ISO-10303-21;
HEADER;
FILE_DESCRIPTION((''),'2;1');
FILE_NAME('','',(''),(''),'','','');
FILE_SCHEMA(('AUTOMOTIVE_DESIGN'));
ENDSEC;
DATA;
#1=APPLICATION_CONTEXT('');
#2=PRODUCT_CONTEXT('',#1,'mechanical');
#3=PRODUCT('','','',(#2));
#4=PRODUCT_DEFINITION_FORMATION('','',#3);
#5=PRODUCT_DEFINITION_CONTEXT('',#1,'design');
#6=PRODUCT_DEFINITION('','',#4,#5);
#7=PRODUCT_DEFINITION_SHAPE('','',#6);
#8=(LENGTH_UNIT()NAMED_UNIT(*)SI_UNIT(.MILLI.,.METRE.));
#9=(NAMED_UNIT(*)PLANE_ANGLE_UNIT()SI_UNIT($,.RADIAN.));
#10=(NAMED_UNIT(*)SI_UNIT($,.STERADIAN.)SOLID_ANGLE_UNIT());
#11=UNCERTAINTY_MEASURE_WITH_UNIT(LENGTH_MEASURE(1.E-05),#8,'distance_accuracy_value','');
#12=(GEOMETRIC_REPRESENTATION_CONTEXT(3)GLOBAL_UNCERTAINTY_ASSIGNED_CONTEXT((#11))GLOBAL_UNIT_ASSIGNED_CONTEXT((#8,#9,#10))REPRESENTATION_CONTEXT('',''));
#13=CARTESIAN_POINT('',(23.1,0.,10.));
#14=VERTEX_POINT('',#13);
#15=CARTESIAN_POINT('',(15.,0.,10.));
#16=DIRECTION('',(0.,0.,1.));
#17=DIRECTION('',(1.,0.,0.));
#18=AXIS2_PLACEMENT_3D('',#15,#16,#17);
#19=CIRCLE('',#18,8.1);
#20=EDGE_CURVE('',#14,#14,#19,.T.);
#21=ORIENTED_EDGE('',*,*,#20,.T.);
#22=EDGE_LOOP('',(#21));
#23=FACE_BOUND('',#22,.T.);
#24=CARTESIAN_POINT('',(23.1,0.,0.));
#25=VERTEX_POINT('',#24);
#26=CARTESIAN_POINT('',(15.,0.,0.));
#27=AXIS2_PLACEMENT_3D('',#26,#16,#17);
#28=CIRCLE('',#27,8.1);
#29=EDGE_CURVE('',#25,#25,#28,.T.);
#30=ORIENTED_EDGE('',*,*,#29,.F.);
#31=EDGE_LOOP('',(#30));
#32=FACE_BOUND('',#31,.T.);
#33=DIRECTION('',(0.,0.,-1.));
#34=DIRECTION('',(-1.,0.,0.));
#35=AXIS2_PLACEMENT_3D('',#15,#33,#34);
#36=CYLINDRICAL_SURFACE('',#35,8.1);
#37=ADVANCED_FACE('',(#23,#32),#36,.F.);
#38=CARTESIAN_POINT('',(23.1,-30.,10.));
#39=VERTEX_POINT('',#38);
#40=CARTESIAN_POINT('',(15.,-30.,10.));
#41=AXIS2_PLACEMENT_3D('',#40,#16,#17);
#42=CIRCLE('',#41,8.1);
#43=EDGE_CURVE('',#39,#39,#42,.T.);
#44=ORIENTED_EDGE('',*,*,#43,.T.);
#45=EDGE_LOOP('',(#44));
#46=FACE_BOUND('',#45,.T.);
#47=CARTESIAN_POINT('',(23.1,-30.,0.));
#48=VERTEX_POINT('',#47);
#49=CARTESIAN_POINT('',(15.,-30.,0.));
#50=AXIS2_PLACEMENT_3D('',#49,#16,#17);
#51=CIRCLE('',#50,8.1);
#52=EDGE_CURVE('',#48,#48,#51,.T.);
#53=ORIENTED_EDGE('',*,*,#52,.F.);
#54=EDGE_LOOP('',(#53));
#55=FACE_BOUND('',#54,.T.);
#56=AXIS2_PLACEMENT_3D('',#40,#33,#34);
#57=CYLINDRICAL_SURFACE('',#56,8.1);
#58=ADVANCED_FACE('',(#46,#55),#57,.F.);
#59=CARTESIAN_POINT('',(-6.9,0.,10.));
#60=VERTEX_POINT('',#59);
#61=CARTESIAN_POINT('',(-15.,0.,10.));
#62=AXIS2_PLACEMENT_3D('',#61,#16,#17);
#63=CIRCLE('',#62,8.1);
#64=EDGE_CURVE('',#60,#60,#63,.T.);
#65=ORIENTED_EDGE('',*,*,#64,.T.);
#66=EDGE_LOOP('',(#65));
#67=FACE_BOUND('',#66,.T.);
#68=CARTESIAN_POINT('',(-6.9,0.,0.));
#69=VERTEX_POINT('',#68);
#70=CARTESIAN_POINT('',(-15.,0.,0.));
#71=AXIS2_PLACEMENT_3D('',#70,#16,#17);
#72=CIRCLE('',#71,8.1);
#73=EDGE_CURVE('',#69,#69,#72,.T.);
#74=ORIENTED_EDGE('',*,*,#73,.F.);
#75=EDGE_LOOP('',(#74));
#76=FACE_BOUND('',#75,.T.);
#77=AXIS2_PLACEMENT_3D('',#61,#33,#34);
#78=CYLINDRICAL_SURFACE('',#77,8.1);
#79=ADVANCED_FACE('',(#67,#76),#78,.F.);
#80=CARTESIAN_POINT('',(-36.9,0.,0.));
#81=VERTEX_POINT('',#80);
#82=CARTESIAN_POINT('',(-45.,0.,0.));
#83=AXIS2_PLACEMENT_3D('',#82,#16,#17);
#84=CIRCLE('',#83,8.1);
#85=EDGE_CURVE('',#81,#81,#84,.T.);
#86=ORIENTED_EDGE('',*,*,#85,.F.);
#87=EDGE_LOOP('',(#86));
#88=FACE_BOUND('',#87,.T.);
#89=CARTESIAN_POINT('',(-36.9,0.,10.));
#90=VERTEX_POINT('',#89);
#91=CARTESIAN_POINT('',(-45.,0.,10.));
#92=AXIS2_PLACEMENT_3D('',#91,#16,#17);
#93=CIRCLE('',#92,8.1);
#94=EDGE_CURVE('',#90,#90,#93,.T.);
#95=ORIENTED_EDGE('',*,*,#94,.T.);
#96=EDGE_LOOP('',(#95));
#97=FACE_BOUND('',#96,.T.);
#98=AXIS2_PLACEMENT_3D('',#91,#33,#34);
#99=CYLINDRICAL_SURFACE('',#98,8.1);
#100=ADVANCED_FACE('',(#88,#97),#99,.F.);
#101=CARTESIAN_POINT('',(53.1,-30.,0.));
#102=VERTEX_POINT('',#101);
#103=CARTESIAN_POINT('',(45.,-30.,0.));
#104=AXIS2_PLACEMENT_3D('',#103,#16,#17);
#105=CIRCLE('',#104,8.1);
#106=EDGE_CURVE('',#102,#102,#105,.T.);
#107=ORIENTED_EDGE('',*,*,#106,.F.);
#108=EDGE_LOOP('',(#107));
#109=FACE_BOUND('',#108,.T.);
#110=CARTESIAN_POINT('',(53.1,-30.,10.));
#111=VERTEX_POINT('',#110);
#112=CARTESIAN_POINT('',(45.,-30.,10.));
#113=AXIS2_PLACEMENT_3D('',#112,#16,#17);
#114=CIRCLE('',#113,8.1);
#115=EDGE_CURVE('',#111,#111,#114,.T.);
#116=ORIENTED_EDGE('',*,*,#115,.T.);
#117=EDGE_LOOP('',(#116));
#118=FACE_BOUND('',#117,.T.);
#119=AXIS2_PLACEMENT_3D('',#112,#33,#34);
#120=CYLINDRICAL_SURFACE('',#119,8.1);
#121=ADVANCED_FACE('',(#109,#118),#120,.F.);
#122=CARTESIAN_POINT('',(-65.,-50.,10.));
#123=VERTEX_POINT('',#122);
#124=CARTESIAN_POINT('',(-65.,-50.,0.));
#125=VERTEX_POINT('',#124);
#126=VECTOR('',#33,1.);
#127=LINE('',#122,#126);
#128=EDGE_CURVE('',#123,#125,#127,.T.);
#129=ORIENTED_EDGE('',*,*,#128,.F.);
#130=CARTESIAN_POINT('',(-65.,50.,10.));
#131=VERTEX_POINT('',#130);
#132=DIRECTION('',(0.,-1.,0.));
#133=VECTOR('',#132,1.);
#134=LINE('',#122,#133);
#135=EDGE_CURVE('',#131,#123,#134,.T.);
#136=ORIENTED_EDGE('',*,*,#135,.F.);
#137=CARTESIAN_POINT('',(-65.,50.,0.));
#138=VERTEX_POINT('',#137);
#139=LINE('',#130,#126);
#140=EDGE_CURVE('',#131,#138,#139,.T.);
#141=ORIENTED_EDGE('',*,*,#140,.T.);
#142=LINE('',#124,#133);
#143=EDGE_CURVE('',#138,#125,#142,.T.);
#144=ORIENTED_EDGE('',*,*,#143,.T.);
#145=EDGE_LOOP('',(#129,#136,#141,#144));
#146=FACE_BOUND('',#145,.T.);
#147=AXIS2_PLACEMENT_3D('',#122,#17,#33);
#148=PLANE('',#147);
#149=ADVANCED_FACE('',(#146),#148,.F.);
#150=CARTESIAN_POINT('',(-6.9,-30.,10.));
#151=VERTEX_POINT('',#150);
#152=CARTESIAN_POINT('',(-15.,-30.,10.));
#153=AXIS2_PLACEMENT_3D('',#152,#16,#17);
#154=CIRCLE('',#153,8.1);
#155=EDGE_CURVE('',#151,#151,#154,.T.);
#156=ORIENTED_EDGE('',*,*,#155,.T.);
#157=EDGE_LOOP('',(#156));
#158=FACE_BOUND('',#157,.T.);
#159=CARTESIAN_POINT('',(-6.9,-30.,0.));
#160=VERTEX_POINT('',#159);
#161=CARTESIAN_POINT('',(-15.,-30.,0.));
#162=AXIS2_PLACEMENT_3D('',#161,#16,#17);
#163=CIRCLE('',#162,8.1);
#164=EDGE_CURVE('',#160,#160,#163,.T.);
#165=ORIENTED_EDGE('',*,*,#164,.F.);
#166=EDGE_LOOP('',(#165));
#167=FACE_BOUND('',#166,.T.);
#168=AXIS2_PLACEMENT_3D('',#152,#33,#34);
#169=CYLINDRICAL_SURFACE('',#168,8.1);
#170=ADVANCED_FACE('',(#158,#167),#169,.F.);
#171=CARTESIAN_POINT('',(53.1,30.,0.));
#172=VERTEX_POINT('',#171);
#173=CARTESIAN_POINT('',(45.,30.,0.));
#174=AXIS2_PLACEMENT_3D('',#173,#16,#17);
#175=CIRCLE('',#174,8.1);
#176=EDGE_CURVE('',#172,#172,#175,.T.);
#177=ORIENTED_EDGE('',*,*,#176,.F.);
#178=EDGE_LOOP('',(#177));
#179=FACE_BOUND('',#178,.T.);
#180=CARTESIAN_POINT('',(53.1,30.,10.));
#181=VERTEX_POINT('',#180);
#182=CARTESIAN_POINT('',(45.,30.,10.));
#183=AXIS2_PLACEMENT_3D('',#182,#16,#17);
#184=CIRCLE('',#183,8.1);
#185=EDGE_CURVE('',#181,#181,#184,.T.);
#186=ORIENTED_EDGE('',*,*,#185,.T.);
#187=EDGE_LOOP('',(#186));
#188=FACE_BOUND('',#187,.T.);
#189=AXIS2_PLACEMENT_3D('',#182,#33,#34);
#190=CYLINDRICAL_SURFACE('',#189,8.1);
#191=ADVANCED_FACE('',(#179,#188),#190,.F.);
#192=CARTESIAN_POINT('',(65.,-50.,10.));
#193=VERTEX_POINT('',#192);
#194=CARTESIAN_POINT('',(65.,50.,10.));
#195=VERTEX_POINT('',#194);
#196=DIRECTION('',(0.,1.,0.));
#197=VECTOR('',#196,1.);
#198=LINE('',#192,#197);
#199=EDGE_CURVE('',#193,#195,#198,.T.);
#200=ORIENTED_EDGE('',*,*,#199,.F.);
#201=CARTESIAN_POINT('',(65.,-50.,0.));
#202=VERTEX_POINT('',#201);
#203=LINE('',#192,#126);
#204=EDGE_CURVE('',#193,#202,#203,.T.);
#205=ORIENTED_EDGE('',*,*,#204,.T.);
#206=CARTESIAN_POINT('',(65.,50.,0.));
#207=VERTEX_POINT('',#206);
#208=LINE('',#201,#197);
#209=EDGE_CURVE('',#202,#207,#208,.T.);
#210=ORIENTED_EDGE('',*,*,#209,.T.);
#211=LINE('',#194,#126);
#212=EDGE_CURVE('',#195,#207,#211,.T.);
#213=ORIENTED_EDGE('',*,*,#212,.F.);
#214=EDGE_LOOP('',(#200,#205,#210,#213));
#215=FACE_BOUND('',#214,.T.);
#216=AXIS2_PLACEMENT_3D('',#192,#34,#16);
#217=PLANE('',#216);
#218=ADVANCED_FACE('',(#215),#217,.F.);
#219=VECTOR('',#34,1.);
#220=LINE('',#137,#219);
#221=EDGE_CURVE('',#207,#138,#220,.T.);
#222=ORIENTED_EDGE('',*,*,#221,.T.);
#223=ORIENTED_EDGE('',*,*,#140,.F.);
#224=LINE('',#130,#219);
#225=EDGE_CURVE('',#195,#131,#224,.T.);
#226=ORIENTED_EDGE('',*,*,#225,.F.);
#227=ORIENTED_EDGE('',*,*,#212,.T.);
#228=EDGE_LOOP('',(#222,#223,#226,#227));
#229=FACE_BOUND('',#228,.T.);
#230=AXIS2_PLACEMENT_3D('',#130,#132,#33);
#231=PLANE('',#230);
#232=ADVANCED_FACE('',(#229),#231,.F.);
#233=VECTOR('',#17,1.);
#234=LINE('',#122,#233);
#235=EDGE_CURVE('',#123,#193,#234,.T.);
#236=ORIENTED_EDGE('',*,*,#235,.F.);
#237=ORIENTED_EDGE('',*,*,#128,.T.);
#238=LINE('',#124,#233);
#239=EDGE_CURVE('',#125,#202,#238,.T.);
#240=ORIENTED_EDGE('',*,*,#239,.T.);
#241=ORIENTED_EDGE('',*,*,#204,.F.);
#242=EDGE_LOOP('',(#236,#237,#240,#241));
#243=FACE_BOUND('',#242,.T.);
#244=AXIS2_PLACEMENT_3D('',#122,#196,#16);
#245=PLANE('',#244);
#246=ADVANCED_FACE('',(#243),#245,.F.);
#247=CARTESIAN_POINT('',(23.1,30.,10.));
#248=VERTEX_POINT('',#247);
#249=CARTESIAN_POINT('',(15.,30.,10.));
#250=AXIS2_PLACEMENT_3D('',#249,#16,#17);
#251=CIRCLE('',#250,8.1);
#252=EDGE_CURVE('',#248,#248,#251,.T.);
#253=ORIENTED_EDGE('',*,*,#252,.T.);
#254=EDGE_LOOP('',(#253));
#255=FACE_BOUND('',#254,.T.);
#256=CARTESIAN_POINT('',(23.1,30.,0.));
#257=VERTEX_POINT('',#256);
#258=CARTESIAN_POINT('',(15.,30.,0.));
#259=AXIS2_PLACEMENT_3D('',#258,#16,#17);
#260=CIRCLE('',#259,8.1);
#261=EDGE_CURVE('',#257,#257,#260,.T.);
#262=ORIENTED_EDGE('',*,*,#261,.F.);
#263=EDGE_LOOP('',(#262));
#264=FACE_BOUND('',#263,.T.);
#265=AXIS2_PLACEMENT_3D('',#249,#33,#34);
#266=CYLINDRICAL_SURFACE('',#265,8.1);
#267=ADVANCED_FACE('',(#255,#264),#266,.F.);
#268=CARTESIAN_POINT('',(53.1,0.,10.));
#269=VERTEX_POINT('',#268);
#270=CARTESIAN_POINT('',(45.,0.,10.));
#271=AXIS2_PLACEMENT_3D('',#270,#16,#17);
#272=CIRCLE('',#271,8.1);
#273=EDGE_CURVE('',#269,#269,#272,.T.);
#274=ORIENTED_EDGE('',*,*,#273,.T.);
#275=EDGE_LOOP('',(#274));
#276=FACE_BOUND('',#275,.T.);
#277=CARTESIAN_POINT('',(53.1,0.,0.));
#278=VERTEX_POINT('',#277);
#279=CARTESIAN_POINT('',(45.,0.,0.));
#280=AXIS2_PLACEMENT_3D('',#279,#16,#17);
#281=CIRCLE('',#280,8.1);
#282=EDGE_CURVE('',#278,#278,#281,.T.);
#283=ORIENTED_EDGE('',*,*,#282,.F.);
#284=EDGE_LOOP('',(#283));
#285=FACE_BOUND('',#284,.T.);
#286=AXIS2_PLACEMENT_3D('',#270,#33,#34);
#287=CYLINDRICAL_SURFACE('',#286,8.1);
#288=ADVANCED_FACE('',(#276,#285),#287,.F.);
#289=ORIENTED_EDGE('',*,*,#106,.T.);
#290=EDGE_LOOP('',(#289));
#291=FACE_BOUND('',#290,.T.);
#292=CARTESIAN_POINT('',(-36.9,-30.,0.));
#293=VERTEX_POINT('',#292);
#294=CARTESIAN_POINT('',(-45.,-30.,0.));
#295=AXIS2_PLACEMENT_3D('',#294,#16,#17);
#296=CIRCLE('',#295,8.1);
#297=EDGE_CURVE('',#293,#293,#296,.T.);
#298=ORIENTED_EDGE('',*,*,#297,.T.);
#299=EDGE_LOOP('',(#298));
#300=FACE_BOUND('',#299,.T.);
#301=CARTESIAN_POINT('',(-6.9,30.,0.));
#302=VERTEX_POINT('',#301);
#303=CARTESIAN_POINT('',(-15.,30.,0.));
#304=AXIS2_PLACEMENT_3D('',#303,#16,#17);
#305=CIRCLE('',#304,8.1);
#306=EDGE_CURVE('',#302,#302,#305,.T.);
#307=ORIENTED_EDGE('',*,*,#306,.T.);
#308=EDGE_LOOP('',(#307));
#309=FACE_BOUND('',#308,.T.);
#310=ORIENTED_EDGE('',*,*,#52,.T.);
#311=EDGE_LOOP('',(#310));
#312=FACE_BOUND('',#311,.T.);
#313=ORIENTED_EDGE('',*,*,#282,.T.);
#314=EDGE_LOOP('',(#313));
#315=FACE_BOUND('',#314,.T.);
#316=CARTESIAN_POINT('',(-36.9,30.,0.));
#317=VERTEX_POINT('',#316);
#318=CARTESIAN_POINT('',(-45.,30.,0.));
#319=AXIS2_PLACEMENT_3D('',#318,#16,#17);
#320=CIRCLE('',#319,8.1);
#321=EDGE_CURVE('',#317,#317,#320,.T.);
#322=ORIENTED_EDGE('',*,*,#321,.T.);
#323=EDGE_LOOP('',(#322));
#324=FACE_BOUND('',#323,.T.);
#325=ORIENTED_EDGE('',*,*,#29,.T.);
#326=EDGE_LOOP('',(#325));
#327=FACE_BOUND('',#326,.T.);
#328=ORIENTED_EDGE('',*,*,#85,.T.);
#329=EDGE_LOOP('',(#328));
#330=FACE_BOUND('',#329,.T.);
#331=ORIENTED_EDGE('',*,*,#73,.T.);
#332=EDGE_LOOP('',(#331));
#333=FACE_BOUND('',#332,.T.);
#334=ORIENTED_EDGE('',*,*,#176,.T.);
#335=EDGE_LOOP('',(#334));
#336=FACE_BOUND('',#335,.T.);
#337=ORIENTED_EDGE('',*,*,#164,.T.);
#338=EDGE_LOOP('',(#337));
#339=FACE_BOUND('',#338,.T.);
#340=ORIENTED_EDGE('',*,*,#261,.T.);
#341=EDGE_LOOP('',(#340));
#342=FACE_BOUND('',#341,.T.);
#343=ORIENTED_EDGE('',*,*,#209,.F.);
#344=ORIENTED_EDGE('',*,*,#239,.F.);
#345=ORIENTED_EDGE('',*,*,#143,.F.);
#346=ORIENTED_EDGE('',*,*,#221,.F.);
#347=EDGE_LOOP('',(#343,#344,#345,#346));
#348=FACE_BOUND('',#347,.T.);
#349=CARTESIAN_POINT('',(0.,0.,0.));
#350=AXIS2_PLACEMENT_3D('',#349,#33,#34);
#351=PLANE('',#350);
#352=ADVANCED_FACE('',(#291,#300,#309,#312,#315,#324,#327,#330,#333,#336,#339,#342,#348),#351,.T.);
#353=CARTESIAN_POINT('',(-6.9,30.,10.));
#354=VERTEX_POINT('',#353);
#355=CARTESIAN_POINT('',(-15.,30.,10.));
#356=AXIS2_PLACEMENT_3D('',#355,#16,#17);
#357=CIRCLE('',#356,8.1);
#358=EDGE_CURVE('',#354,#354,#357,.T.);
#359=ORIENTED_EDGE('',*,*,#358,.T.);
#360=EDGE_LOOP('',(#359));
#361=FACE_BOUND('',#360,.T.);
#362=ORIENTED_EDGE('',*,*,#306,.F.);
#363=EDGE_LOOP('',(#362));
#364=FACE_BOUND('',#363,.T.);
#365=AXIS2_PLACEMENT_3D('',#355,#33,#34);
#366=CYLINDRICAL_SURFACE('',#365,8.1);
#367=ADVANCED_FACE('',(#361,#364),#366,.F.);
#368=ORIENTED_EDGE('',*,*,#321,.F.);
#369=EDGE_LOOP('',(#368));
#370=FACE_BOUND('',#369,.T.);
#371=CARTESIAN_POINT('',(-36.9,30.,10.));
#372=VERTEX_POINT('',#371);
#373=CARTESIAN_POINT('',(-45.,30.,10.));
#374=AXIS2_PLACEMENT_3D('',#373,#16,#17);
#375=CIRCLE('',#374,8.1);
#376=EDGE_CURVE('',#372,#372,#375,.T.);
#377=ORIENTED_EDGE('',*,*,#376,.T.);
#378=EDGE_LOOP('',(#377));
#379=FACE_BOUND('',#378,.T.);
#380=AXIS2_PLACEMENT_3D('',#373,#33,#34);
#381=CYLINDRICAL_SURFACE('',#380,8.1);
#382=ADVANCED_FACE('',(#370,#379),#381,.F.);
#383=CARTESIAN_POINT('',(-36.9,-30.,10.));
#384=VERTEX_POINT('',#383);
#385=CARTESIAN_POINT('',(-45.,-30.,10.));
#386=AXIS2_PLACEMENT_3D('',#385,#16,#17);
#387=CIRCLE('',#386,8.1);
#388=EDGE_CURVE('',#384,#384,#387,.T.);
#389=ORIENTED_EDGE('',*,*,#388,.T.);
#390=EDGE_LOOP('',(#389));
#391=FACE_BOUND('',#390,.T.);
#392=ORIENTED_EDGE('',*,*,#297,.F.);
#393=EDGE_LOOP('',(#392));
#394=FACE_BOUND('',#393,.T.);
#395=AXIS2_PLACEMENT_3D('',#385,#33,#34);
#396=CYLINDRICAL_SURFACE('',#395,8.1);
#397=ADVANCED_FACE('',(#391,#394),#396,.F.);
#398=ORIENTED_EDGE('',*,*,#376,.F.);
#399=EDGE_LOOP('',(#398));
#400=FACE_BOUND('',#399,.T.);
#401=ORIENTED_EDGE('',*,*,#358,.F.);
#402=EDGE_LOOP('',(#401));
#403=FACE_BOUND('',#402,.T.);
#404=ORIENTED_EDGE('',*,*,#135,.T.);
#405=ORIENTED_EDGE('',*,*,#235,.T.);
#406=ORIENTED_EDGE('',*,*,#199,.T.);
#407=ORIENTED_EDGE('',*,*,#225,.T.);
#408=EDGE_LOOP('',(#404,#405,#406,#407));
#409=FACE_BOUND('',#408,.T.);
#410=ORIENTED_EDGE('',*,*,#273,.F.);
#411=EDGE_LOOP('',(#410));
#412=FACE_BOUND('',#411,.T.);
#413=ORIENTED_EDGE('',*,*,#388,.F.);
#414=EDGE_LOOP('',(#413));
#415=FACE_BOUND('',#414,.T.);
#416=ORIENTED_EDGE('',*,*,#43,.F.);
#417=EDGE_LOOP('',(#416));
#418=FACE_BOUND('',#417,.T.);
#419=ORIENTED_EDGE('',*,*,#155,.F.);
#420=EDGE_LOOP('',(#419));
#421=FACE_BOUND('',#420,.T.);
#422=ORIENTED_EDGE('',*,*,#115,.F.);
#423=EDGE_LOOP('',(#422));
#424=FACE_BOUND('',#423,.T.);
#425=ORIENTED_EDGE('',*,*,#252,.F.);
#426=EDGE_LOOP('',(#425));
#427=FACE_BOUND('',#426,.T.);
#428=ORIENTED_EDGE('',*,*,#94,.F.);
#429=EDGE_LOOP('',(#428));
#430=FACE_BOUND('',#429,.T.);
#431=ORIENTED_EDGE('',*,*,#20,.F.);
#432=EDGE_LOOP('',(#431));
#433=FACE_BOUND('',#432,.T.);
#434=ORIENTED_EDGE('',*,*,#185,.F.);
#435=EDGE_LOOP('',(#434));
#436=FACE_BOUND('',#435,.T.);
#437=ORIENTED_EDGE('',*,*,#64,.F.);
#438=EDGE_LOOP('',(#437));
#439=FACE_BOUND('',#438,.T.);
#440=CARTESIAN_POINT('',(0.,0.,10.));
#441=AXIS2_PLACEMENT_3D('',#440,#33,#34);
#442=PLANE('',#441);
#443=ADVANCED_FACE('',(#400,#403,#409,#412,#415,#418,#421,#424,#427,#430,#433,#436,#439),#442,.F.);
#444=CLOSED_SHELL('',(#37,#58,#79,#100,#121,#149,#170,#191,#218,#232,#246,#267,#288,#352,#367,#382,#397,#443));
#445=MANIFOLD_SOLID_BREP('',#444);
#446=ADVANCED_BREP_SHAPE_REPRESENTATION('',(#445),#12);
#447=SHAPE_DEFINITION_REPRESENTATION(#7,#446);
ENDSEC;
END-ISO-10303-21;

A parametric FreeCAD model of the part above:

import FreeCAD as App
import Part
import Sketcher
Q = App.Units.Quantity


def add_polygon(sketch, points):
    """Adds a closed chain of lines whose ends are joined by coincident constraints."""
    first, n = sketch.GeometryCount, len(points)
    for a, b in zip(points, points[1:] + points[:1]):
        sketch.addGeometry(Part.LineSegment(App.Vector(*a, 0), App.Vector(*b, 0)), False)
    for i in range(n):
        sketch.addConstraint(Sketcher.Constraint("Coincident", first + i, 2, first + (i + 1) % n, 1))

doc = App.newDocument("Part")
body = doc.addObject("PartDesign::Body", "Body")

sketch1 = body.newObject("Sketcher::SketchObject", "Sketch")
sketch1.AttachmentSupport = (doc.getObject("XY_Plane"), [""])
sketch1.MapMode = "FlatFace"
add_polygon(sketch1, [(-65, 50), (-65, -50), (65, -50), (65, 50)])
sketch1.addGeometry(Part.Circle(App.Vector(-45, -30, 0), App.Vector(0, 0, 1), 8), False)
sketch1.addGeometry(Part.Circle(App.Vector(-15, -30, 0), App.Vector(0, 0, 1), 8), False)
sketch1.addGeometry(Part.Circle(App.Vector(15, -30, 0), App.Vector(0, 0, 1), 8), False)
sketch1.addGeometry(Part.Circle(App.Vector(45, -30, 0), App.Vector(0, 0, 1), 8), False)
sketch1.addGeometry(Part.Circle(App.Vector(-45, 0, 0), App.Vector(0, 0, 1), 8), False)
sketch1.addGeometry(Part.Circle(App.Vector(-15, 0, 0), App.Vector(0, 0, 1), 8), False)
sketch1.addGeometry(Part.Circle(App.Vector(-45, 30, 0), App.Vector(0, 0, 1), 8), False)
sketch1.addGeometry(Part.Circle(App.Vector(-15, 30, 0), App.Vector(0, 0, 1), 8), False)
sketch1.addGeometry(Part.Circle(App.Vector(15, 0, 0), App.Vector(0, 0, 1), 8), False)
sketch1.addGeometry(Part.Circle(App.Vector(45, 0, 0), App.Vector(0, 0, 1), 8), False)
sketch1.addGeometry(Part.Circle(App.Vector(15, 30, 0), App.Vector(0, 0, 1), 8), False)
sketch1.addGeometry(Part.Circle(App.Vector(45, 30, 0), App.Vector(0, 0, 1), 8), False)
sketch1.addConstraint([
    Sketcher.Constraint("Vertical", 0),
    Sketcher.Constraint("Horizontal", 1),
    Sketcher.Constraint("Vertical", 2),
    Sketcher.Constraint("Horizontal", 3),
    Sketcher.Constraint("Equal", 4, 5),
    Sketcher.Constraint("Equal", 5, 6),
    Sketcher.Constraint("Equal", 6, 7),
    Sketcher.Constraint("Equal", 7, 8),
    Sketcher.Constraint("Equal", 8, 9),
    Sketcher.Constraint("Equal", 9, 10),
    Sketcher.Constraint("Equal", 10, 11),
    Sketcher.Constraint("Equal", 11, 12),
    Sketcher.Constraint("Equal", 12, 13),
    Sketcher.Constraint("Equal", 13, 14),
    Sketcher.Constraint("Equal", 14, 15),
    Sketcher.Constraint("Symmetric", 7, 3, 10, 3, -1, 1),
    Sketcher.Constraint("Symmetric", 6, 3, 11, 3, -1, 1),
    Sketcher.Constraint("Symmetric", 9, 3, 12, 3, -1, 1),
    Sketcher.Constraint("Symmetric", 8, 3, 13, 3, -1, 1),
    Sketcher.Constraint("Symmetric", 5, 3, 14, 3, -1, 1),
    Sketcher.Constraint("Symmetric", 4, 3, 15, 3, -1, 1),
    Sketcher.Constraint("Symmetric", 0, 2, 2, 2, -1, 1),
    Sketcher.Constraint("Symmetric", 5, 3, 6, 3, -2),
    Sketcher.Constraint("Symmetric", 4, 3, 7, 3, -2),
    Sketcher.Constraint("PointOnObject", 8, 3, -1),
    Sketcher.Constraint("PointOnObject", 9, 3, -1),
    Sketcher.Constraint("Horizontal", 4, 3, 5, 3),
    Sketcher.Constraint("Vertical", 4, 3, 8, 3),
    Sketcher.Constraint("Vertical", 5, 3, 9, 3),
    Sketcher.Constraint("Diameter", 4, Q("16.2 mm")),
    Sketcher.Constraint("DistanceX", 1, 1, 1, 2, Q("130 mm")),
    Sketcher.Constraint("DistanceY", 0, 2, 0, 1, Q("100 mm")),
    Sketcher.Constraint("DistanceX", 4, 3, -1, 1, Q("45 mm")),
    Sketcher.Constraint("DistanceY", 4, 3, -1, 1, Q("30 mm")),
    Sketcher.Constraint("DistanceX", 5, 3, -1, 1, Q("15 mm")),
])
pad1 = body.newObject("PartDesign::Pad", "Pad")
pad1.Profile = sketch1
pad1.Length = 10

doc.recompute()
